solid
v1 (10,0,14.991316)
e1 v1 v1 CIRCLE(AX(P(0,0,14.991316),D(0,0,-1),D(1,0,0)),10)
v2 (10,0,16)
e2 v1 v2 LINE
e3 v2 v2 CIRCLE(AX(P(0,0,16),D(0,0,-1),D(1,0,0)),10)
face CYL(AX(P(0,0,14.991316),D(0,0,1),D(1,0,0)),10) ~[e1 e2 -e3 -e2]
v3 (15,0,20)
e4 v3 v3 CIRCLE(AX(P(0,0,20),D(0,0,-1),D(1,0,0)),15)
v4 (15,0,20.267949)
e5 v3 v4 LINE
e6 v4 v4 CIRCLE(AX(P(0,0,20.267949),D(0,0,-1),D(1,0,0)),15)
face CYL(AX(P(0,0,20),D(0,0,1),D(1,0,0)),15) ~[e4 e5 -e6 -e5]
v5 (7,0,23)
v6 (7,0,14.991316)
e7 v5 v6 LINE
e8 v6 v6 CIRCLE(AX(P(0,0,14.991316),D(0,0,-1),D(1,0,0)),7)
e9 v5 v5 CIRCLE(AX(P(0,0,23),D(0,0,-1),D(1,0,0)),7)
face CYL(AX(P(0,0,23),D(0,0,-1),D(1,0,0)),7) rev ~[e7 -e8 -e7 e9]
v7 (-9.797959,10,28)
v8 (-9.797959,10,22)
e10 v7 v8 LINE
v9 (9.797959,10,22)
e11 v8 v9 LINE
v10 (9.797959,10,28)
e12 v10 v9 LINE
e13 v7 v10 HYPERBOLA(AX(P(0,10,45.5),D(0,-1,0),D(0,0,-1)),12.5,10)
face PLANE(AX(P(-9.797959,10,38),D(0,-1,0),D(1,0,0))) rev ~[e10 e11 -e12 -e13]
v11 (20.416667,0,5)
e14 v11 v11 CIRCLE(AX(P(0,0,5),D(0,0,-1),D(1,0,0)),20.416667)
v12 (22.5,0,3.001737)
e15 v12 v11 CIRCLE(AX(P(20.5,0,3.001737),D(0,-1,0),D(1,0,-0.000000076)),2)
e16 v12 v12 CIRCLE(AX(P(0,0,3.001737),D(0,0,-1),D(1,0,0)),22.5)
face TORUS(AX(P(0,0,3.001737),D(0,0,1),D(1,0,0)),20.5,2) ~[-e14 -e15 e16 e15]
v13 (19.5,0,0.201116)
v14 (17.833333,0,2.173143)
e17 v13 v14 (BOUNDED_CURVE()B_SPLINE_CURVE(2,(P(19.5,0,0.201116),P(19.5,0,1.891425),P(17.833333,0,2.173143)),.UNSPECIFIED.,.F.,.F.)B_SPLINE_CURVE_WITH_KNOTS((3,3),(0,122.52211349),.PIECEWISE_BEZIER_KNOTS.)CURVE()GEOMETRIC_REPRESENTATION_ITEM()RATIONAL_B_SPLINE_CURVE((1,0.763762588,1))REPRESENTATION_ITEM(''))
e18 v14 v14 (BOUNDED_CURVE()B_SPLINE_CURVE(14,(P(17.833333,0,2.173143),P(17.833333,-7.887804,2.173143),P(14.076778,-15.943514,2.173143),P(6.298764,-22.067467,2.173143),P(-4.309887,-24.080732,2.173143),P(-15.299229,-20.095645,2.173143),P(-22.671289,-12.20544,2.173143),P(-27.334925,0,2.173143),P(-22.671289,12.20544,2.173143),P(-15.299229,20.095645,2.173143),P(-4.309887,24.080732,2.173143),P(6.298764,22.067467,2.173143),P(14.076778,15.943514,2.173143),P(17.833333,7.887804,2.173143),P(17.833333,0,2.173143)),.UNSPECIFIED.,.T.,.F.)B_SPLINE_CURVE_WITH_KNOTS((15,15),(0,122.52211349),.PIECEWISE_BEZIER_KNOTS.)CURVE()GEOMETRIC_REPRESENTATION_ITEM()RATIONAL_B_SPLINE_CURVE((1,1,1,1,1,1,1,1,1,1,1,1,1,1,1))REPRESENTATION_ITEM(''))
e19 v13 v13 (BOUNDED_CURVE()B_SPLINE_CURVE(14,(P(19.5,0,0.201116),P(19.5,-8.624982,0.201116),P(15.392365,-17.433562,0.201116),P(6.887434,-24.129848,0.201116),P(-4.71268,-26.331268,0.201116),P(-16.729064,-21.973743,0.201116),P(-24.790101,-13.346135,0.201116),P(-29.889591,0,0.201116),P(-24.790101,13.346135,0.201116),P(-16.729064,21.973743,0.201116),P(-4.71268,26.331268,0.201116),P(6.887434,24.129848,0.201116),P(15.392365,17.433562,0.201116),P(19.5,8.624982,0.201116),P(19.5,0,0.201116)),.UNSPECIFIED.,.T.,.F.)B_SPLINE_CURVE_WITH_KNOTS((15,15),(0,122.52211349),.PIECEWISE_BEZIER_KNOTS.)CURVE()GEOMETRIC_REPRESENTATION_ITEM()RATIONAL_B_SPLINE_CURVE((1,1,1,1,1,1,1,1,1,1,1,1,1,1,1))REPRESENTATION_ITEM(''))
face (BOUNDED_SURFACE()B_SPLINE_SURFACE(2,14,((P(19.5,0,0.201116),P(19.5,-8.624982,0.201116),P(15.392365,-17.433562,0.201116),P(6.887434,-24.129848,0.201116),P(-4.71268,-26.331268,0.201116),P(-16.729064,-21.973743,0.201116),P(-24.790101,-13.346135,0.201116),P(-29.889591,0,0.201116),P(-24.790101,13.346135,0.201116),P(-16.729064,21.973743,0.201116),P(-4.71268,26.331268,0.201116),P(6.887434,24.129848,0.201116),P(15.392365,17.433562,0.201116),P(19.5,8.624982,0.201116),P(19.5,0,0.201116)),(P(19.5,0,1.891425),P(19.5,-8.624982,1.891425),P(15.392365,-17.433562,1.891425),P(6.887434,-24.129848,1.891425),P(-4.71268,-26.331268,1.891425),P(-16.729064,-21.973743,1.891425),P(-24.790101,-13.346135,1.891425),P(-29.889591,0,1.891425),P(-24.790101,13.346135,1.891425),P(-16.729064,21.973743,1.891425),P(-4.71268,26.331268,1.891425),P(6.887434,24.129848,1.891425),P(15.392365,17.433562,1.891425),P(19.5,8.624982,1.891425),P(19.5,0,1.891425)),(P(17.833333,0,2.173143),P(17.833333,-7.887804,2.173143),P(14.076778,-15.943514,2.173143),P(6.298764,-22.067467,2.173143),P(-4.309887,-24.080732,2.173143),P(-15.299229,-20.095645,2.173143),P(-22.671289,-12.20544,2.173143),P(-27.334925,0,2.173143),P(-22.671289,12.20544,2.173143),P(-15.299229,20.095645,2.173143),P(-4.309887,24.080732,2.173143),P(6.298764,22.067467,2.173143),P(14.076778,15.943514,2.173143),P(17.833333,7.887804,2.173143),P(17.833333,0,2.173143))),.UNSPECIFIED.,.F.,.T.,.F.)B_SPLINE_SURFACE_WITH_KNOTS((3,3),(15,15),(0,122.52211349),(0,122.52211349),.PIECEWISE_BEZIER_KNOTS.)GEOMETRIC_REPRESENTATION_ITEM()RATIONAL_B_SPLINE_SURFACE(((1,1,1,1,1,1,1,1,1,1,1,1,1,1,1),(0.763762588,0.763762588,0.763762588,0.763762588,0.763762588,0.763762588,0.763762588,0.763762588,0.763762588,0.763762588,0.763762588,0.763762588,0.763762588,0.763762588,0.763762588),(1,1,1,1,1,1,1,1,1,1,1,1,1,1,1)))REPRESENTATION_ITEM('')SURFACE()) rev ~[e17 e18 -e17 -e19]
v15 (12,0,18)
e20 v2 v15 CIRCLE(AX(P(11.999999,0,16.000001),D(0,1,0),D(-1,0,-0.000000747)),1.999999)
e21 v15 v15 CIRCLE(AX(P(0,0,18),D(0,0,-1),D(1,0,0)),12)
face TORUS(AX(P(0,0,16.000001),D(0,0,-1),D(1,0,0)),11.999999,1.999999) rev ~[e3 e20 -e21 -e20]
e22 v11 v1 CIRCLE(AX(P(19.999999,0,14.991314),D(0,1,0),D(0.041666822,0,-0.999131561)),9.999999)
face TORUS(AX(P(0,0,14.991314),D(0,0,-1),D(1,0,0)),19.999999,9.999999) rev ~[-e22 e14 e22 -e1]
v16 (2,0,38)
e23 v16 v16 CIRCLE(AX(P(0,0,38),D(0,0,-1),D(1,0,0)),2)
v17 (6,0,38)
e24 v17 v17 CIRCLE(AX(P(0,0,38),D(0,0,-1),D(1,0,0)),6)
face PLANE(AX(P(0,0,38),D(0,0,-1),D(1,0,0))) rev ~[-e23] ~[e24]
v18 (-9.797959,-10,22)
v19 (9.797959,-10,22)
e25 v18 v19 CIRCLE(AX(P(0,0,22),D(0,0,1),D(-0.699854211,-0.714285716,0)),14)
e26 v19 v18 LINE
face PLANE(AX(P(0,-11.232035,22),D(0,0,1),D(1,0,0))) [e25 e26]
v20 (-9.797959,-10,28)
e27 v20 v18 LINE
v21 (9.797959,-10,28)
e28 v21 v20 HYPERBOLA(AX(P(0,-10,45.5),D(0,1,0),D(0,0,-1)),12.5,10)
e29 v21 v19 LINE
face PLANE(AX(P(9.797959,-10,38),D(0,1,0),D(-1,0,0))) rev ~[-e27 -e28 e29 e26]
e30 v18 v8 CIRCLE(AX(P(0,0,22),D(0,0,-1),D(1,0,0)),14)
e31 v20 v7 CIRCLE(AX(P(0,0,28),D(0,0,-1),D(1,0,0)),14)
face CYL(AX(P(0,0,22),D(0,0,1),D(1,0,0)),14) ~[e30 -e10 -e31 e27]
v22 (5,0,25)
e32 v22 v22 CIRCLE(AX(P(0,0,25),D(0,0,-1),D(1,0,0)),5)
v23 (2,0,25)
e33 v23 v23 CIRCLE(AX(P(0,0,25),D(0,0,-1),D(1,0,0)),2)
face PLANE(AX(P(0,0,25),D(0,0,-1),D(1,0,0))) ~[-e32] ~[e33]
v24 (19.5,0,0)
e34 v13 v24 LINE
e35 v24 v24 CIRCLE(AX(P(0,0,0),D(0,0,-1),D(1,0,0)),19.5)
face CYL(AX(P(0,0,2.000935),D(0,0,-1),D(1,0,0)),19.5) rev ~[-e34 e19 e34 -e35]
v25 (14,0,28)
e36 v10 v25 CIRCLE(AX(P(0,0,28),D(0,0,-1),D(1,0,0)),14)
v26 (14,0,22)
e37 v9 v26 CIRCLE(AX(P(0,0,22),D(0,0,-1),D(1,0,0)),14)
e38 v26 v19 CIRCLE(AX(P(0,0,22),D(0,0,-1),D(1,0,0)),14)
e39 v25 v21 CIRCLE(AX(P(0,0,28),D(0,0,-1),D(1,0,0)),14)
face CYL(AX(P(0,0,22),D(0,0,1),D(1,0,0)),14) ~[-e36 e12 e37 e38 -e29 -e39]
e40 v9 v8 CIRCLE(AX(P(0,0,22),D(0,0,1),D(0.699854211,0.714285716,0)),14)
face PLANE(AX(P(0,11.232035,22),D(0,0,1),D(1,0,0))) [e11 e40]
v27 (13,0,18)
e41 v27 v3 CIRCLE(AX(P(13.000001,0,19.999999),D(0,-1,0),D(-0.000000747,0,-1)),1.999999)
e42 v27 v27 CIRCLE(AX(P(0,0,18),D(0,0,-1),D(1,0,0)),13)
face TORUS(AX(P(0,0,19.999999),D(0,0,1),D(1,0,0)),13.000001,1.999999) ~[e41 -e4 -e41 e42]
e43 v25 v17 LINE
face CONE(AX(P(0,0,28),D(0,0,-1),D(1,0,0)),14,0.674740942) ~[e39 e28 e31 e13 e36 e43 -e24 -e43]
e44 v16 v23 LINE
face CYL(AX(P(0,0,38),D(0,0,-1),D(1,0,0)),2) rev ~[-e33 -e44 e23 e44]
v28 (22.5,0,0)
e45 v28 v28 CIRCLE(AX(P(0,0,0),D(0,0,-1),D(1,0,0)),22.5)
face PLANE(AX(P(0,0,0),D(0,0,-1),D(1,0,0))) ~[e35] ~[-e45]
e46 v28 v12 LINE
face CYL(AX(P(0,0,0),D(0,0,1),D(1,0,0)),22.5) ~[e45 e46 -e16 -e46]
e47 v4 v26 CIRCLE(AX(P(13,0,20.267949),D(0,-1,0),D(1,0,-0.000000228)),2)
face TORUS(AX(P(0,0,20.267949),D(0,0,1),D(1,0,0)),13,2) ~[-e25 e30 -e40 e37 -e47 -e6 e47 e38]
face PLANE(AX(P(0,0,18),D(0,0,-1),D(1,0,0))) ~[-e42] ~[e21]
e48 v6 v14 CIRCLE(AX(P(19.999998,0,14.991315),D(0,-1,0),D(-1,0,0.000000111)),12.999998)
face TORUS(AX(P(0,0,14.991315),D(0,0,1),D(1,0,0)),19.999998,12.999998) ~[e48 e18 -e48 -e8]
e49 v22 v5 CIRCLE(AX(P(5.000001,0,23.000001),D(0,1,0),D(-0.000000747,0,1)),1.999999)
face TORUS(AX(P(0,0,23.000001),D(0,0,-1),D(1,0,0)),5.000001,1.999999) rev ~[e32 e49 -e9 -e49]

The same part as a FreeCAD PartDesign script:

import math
import FreeCAD as App
import Part
import Sketcher
Q = App.Units.Quantity


def edges_at(feature, points):
    """Names of the edges that pass closest to the given points."""
    edges = feature.Shape.Edges
    near = lambda p: min(range(len(edges)), key=lambda i: edges[i].distToShape(Part.Vertex(*p))[0])
    return sorted({f"Edge{near(p) + 1}" for p in points})

doc = App.newDocument("Part")
body = doc.addObject("PartDesign::Body", "Body")

# Sketch on XZ plane
sketch1 = body.newObject("Sketcher::SketchObject", "Sketch")
sketch1.AttachmentSupport = (doc.getObject("XZ_Plane"), [""])
sketch1.MapMode = "FlatFace"
sketch1.addGeometry([
    Part.LineSegment(App.Vector(19.5, 2.000935, 0), App.Vector(19.5, 0, 0)),  # 0
    Part.LineSegment(App.Vector(19.5, 0, 0), App.Vector(22.5, 0, 0)),  # 1
    Part.LineSegment(App.Vector(22.5, 0, 0), App.Vector(22.5, 3.001737, 0)),  # 2
    Part.ArcOfCircle(Part.Circle(App.Vector(20.5, 3.001737, 0), App.Vector(0, 0, 1), 2), math.radians(-0.000004), math.radians(92.388015)),  # 3
    Part.ArcOfCircle(Part.Circle(App.Vector(19.999999, 14.991314, 0), App.Vector(0, 0, 1), 9.999999), math.radians(179.999991), math.radians(272.388024)),  # 4
    Part.LineSegment(App.Vector(10, 14.991316, 0), App.Vector(10, 16, 0)),  # 5
    Part.ArcOfCircle(Part.Circle(App.Vector(11.999999, 16.000001, 0), App.Vector(0, 0, 1), 1.999999), math.radians(89.999957), math.radians(180.000043)),  # 6
    Part.LineSegment(App.Vector(12, 18, 0), App.Vector(13, 18, 0)),  # 7
    Part.ArcOfCircle(Part.Circle(App.Vector(13.000001, 19.999999, 0), App.Vector(0, 0, 1), 1.999999), math.radians(-90.000043), math.radians(0.000043)),  # 8
    Part.LineSegment(App.Vector(15, 20, 0), App.Vector(15, 20.267949, 0)),  # 9
    Part.ArcOfCircle(Part.Circle(App.Vector(13, 20.267949, 0), App.Vector(0, 0, 1), 2), math.radians(-0.000013), math.radians(60.000008)),  # 10
    Part.LineSegment(App.Vector(14, 22, 0), App.Vector(14, 28, 0)),  # 11
    Part.LineSegment(App.Vector(14, 28, 0), App.Vector(6, 38, 0)),  # 12
    Part.LineSegment(App.Vector(6, 38, 0), App.Vector(2, 38, 0)),  # 13
    Part.LineSegment(App.Vector(2, 38, 0), App.Vector(2, 25, 0)),  # 14
    Part.LineSegment(App.Vector(2, 25, 0), App.Vector(5, 25, 0)),  # 15
    Part.ArcOfCircle(Part.Circle(App.Vector(5.000001, 23.000001, 0), App.Vector(0, 0, 1), 1.999999), math.radians(-0.000043), math.radians(90.000043)),  # 16
    Part.LineSegment(App.Vector(7, 23, 0), App.Vector(7, 14.991316, 0)),  # 17
    Part.ArcOfCircle(Part.Circle(App.Vector(19.999998, 14.991315, 0), App.Vector(0, 0, 1), 12.999998), math.radians(179.999994), math.radians(267.795779)),  # 18
], False)
sketch1.addConstraint([
    Sketcher.Constraint("Coincident", 0, 2, 1, 1),
    Sketcher.Constraint("Coincident", 1, 2, 2, 1),
    Sketcher.Constraint("Tangent", 2, 2, 3, 1),
    Sketcher.Constraint("Tangent", 3, 2, 4, 2),
    Sketcher.Constraint("Tangent", 4, 1, 5, 1),
    Sketcher.Constraint("Tangent", 5, 2, 6, 2),
    Sketcher.Constraint("Tangent", 6, 1, 7, 1),
    Sketcher.Constraint("Tangent", 7, 2, 8, 1),
    Sketcher.Constraint("Tangent", 8, 2, 9, 1),
    Sketcher.Constraint("Tangent", 9, 2, 10, 1),
    Sketcher.Constraint("Coincident", 10, 2, 11, 1),
    Sketcher.Constraint("Coincident", 11, 2, 12, 1),
    Sketcher.Constraint("Coincident", 12, 2, 13, 1),
    Sketcher.Constraint("Coincident", 13, 2, 14, 1),
    Sketcher.Constraint("Coincident", 14, 2, 15, 1),
    Sketcher.Constraint("Tangent", 15, 2, 16, 2),
    Sketcher.Constraint("Tangent", 16, 1, 17, 1),
    Sketcher.Constraint("Tangent", 17, 2, 18, 1),
    Sketcher.Constraint("Coincident", 18, 2, 0, 1),
    Sketcher.Constraint("Vertical", 0),
    Sketcher.Constraint("Horizontal", 1),
    Sketcher.Constraint("Vertical", 2),
    Sketcher.Constraint("Vertical", 5),
    Sketcher.Constraint("Horizontal", 7),
    Sketcher.Constraint("Vertical", 9),
    Sketcher.Constraint("Vertical", 11),
    Sketcher.Constraint("Horizontal", 13),
    Sketcher.Constraint("Vertical", 14),
    Sketcher.Constraint("Horizontal", 15),
    Sketcher.Constraint("Vertical", 17),
    Sketcher.Constraint("Coincident", 18, 3, 4, 3),
    Sketcher.Constraint("Equal", 3, 6),
    Sketcher.Constraint("Equal", 6, 8),
    Sketcher.Constraint("Equal", 8, 10),
    Sketcher.Constraint("Equal", 10, 16),
    Sketcher.Constraint("PointOnObject", 0, 2, -1),
    Sketcher.Constraint("Equal", 1, 15),
    Sketcher.Constraint("Radius", 3, Q("2 mm")),
    Sketcher.Constraint("Radius", 4, Q("9.999999 mm")),
    Sketcher.Constraint("Radius", 18, Q("12.999998 mm")),
    Sketcher.Constraint("DistanceX", 1, 1, 1, 2, Q("3 mm")),
    Sketcher.Constraint("DistanceX", 7, 1, 7, 2, Q("1 mm")),
    Sketcher.Constraint("DistanceX", 13, 2, 13, 1, Q("4 mm")),
    Sketcher.Constraint("DistanceY", 11, 1, 11, 2, Q("6 mm")),
    Sketcher.Constraint("DistanceY", 14, 2, 14, 1, Q("13 mm")),
    Sketcher.Constraint("DistanceX", -1, 1, 4, 3, Q("19.999999 mm")),
    Sketcher.Constraint("DistanceY", -1, 1, 6, 3, Q("16.000001 mm")),
    Sketcher.Constraint("DistanceY", -1, 1, 16, 3, Q("23.000001 mm")),
    Sketcher.Constraint("DistanceY", -1, 1, 3, 2, Q("5 mm")),
    Sketcher.Constraint("DistanceX", -1, 1, 10, 2, Q("14 mm")),
    Sketcher.Constraint("DistanceY", -1, 1, 10, 2, Q("22 mm")),
    Sketcher.Constraint("DistanceX", -1, 1, 3, 3, Q("20.5 mm")),
])
revolution = body.newObject("PartDesign::Revolution", "Revolution")
revolution.Profile = sketch1
revolution.ReferenceAxis = (sketch1, ["V_Axis"])
revolution.Angle = 360
doc.recompute()

fillet = body.newObject("PartDesign::Fillet", "Fillet")
fillet.Base = (revolution, edges_at(revolution, [(-19.5, 0, 2.001), (-5, 0, 25)]))
fillet.Radius = 2

# Sketch on XY plane
sketch2 = body.newObject("Sketcher::SketchObject", "Sketch001")
sketch2.AttachmentSupport = (doc.getObject("XY_Plane"), [""])
sketch2.MapMode = "FlatFace"
sketch2.AttachmentOffset = App.Placement(App.Vector(0, 0, 38), App.Rotation())
sketch2.addGeometry([
    Part.LineSegment(App.Vector(-9.797959, 10, 0), App.Vector(9.797959, 10, 0)),
    Part.ArcOfCircle(Part.Circle(App.Vector(0, 0, 0), App.Vector(0, 0, 1), 14), math.radians(45.584692), math.radians(134.415308)),
    Part.ArcOfCircle(Part.Circle(App.Vector(0, 0, 0), App.Vector(0, 0, 1), 14), math.radians(-134.415308), math.radians(-45.584692)),
    Part.LineSegment(App.Vector(9.797959, -10, 0), App.Vector(-9.797959, -10, 0)),
], False)
sketch2.addConstraint([
    Sketcher.Constraint("Coincident", 0, 1, 1, 2),
    Sketcher.Constraint("Coincident", 1, 1, 0, 2),
    Sketcher.Constraint("Coincident", 2, 1, 3, 2),
    Sketcher.Constraint("Coincident", 3, 1, 2, 2),
    Sketcher.Constraint("Horizontal", 0),
    Sketcher.Constraint("Horizontal", 3),
    Sketcher.Constraint("Coincident", 1, 3, -1, 1),
    Sketcher.Constraint("Coincident", 2, 3, -1, 1),
    Sketcher.Constraint("Equal", 1, 2),
    Sketcher.Constraint("Vertical", 0, 1, 2, 1),
    Sketcher.Constraint("Radius", 1, Q("14 mm")),
    Sketcher.Constraint("DistanceY", -1, 1, 0, 1, Q("10 mm")),
])
pocket1 = body.newObject("PartDesign::Pocket", "Pocket")
pocket1.Profile = sketch2
pocket1.Length = 16

doc.recompute()
